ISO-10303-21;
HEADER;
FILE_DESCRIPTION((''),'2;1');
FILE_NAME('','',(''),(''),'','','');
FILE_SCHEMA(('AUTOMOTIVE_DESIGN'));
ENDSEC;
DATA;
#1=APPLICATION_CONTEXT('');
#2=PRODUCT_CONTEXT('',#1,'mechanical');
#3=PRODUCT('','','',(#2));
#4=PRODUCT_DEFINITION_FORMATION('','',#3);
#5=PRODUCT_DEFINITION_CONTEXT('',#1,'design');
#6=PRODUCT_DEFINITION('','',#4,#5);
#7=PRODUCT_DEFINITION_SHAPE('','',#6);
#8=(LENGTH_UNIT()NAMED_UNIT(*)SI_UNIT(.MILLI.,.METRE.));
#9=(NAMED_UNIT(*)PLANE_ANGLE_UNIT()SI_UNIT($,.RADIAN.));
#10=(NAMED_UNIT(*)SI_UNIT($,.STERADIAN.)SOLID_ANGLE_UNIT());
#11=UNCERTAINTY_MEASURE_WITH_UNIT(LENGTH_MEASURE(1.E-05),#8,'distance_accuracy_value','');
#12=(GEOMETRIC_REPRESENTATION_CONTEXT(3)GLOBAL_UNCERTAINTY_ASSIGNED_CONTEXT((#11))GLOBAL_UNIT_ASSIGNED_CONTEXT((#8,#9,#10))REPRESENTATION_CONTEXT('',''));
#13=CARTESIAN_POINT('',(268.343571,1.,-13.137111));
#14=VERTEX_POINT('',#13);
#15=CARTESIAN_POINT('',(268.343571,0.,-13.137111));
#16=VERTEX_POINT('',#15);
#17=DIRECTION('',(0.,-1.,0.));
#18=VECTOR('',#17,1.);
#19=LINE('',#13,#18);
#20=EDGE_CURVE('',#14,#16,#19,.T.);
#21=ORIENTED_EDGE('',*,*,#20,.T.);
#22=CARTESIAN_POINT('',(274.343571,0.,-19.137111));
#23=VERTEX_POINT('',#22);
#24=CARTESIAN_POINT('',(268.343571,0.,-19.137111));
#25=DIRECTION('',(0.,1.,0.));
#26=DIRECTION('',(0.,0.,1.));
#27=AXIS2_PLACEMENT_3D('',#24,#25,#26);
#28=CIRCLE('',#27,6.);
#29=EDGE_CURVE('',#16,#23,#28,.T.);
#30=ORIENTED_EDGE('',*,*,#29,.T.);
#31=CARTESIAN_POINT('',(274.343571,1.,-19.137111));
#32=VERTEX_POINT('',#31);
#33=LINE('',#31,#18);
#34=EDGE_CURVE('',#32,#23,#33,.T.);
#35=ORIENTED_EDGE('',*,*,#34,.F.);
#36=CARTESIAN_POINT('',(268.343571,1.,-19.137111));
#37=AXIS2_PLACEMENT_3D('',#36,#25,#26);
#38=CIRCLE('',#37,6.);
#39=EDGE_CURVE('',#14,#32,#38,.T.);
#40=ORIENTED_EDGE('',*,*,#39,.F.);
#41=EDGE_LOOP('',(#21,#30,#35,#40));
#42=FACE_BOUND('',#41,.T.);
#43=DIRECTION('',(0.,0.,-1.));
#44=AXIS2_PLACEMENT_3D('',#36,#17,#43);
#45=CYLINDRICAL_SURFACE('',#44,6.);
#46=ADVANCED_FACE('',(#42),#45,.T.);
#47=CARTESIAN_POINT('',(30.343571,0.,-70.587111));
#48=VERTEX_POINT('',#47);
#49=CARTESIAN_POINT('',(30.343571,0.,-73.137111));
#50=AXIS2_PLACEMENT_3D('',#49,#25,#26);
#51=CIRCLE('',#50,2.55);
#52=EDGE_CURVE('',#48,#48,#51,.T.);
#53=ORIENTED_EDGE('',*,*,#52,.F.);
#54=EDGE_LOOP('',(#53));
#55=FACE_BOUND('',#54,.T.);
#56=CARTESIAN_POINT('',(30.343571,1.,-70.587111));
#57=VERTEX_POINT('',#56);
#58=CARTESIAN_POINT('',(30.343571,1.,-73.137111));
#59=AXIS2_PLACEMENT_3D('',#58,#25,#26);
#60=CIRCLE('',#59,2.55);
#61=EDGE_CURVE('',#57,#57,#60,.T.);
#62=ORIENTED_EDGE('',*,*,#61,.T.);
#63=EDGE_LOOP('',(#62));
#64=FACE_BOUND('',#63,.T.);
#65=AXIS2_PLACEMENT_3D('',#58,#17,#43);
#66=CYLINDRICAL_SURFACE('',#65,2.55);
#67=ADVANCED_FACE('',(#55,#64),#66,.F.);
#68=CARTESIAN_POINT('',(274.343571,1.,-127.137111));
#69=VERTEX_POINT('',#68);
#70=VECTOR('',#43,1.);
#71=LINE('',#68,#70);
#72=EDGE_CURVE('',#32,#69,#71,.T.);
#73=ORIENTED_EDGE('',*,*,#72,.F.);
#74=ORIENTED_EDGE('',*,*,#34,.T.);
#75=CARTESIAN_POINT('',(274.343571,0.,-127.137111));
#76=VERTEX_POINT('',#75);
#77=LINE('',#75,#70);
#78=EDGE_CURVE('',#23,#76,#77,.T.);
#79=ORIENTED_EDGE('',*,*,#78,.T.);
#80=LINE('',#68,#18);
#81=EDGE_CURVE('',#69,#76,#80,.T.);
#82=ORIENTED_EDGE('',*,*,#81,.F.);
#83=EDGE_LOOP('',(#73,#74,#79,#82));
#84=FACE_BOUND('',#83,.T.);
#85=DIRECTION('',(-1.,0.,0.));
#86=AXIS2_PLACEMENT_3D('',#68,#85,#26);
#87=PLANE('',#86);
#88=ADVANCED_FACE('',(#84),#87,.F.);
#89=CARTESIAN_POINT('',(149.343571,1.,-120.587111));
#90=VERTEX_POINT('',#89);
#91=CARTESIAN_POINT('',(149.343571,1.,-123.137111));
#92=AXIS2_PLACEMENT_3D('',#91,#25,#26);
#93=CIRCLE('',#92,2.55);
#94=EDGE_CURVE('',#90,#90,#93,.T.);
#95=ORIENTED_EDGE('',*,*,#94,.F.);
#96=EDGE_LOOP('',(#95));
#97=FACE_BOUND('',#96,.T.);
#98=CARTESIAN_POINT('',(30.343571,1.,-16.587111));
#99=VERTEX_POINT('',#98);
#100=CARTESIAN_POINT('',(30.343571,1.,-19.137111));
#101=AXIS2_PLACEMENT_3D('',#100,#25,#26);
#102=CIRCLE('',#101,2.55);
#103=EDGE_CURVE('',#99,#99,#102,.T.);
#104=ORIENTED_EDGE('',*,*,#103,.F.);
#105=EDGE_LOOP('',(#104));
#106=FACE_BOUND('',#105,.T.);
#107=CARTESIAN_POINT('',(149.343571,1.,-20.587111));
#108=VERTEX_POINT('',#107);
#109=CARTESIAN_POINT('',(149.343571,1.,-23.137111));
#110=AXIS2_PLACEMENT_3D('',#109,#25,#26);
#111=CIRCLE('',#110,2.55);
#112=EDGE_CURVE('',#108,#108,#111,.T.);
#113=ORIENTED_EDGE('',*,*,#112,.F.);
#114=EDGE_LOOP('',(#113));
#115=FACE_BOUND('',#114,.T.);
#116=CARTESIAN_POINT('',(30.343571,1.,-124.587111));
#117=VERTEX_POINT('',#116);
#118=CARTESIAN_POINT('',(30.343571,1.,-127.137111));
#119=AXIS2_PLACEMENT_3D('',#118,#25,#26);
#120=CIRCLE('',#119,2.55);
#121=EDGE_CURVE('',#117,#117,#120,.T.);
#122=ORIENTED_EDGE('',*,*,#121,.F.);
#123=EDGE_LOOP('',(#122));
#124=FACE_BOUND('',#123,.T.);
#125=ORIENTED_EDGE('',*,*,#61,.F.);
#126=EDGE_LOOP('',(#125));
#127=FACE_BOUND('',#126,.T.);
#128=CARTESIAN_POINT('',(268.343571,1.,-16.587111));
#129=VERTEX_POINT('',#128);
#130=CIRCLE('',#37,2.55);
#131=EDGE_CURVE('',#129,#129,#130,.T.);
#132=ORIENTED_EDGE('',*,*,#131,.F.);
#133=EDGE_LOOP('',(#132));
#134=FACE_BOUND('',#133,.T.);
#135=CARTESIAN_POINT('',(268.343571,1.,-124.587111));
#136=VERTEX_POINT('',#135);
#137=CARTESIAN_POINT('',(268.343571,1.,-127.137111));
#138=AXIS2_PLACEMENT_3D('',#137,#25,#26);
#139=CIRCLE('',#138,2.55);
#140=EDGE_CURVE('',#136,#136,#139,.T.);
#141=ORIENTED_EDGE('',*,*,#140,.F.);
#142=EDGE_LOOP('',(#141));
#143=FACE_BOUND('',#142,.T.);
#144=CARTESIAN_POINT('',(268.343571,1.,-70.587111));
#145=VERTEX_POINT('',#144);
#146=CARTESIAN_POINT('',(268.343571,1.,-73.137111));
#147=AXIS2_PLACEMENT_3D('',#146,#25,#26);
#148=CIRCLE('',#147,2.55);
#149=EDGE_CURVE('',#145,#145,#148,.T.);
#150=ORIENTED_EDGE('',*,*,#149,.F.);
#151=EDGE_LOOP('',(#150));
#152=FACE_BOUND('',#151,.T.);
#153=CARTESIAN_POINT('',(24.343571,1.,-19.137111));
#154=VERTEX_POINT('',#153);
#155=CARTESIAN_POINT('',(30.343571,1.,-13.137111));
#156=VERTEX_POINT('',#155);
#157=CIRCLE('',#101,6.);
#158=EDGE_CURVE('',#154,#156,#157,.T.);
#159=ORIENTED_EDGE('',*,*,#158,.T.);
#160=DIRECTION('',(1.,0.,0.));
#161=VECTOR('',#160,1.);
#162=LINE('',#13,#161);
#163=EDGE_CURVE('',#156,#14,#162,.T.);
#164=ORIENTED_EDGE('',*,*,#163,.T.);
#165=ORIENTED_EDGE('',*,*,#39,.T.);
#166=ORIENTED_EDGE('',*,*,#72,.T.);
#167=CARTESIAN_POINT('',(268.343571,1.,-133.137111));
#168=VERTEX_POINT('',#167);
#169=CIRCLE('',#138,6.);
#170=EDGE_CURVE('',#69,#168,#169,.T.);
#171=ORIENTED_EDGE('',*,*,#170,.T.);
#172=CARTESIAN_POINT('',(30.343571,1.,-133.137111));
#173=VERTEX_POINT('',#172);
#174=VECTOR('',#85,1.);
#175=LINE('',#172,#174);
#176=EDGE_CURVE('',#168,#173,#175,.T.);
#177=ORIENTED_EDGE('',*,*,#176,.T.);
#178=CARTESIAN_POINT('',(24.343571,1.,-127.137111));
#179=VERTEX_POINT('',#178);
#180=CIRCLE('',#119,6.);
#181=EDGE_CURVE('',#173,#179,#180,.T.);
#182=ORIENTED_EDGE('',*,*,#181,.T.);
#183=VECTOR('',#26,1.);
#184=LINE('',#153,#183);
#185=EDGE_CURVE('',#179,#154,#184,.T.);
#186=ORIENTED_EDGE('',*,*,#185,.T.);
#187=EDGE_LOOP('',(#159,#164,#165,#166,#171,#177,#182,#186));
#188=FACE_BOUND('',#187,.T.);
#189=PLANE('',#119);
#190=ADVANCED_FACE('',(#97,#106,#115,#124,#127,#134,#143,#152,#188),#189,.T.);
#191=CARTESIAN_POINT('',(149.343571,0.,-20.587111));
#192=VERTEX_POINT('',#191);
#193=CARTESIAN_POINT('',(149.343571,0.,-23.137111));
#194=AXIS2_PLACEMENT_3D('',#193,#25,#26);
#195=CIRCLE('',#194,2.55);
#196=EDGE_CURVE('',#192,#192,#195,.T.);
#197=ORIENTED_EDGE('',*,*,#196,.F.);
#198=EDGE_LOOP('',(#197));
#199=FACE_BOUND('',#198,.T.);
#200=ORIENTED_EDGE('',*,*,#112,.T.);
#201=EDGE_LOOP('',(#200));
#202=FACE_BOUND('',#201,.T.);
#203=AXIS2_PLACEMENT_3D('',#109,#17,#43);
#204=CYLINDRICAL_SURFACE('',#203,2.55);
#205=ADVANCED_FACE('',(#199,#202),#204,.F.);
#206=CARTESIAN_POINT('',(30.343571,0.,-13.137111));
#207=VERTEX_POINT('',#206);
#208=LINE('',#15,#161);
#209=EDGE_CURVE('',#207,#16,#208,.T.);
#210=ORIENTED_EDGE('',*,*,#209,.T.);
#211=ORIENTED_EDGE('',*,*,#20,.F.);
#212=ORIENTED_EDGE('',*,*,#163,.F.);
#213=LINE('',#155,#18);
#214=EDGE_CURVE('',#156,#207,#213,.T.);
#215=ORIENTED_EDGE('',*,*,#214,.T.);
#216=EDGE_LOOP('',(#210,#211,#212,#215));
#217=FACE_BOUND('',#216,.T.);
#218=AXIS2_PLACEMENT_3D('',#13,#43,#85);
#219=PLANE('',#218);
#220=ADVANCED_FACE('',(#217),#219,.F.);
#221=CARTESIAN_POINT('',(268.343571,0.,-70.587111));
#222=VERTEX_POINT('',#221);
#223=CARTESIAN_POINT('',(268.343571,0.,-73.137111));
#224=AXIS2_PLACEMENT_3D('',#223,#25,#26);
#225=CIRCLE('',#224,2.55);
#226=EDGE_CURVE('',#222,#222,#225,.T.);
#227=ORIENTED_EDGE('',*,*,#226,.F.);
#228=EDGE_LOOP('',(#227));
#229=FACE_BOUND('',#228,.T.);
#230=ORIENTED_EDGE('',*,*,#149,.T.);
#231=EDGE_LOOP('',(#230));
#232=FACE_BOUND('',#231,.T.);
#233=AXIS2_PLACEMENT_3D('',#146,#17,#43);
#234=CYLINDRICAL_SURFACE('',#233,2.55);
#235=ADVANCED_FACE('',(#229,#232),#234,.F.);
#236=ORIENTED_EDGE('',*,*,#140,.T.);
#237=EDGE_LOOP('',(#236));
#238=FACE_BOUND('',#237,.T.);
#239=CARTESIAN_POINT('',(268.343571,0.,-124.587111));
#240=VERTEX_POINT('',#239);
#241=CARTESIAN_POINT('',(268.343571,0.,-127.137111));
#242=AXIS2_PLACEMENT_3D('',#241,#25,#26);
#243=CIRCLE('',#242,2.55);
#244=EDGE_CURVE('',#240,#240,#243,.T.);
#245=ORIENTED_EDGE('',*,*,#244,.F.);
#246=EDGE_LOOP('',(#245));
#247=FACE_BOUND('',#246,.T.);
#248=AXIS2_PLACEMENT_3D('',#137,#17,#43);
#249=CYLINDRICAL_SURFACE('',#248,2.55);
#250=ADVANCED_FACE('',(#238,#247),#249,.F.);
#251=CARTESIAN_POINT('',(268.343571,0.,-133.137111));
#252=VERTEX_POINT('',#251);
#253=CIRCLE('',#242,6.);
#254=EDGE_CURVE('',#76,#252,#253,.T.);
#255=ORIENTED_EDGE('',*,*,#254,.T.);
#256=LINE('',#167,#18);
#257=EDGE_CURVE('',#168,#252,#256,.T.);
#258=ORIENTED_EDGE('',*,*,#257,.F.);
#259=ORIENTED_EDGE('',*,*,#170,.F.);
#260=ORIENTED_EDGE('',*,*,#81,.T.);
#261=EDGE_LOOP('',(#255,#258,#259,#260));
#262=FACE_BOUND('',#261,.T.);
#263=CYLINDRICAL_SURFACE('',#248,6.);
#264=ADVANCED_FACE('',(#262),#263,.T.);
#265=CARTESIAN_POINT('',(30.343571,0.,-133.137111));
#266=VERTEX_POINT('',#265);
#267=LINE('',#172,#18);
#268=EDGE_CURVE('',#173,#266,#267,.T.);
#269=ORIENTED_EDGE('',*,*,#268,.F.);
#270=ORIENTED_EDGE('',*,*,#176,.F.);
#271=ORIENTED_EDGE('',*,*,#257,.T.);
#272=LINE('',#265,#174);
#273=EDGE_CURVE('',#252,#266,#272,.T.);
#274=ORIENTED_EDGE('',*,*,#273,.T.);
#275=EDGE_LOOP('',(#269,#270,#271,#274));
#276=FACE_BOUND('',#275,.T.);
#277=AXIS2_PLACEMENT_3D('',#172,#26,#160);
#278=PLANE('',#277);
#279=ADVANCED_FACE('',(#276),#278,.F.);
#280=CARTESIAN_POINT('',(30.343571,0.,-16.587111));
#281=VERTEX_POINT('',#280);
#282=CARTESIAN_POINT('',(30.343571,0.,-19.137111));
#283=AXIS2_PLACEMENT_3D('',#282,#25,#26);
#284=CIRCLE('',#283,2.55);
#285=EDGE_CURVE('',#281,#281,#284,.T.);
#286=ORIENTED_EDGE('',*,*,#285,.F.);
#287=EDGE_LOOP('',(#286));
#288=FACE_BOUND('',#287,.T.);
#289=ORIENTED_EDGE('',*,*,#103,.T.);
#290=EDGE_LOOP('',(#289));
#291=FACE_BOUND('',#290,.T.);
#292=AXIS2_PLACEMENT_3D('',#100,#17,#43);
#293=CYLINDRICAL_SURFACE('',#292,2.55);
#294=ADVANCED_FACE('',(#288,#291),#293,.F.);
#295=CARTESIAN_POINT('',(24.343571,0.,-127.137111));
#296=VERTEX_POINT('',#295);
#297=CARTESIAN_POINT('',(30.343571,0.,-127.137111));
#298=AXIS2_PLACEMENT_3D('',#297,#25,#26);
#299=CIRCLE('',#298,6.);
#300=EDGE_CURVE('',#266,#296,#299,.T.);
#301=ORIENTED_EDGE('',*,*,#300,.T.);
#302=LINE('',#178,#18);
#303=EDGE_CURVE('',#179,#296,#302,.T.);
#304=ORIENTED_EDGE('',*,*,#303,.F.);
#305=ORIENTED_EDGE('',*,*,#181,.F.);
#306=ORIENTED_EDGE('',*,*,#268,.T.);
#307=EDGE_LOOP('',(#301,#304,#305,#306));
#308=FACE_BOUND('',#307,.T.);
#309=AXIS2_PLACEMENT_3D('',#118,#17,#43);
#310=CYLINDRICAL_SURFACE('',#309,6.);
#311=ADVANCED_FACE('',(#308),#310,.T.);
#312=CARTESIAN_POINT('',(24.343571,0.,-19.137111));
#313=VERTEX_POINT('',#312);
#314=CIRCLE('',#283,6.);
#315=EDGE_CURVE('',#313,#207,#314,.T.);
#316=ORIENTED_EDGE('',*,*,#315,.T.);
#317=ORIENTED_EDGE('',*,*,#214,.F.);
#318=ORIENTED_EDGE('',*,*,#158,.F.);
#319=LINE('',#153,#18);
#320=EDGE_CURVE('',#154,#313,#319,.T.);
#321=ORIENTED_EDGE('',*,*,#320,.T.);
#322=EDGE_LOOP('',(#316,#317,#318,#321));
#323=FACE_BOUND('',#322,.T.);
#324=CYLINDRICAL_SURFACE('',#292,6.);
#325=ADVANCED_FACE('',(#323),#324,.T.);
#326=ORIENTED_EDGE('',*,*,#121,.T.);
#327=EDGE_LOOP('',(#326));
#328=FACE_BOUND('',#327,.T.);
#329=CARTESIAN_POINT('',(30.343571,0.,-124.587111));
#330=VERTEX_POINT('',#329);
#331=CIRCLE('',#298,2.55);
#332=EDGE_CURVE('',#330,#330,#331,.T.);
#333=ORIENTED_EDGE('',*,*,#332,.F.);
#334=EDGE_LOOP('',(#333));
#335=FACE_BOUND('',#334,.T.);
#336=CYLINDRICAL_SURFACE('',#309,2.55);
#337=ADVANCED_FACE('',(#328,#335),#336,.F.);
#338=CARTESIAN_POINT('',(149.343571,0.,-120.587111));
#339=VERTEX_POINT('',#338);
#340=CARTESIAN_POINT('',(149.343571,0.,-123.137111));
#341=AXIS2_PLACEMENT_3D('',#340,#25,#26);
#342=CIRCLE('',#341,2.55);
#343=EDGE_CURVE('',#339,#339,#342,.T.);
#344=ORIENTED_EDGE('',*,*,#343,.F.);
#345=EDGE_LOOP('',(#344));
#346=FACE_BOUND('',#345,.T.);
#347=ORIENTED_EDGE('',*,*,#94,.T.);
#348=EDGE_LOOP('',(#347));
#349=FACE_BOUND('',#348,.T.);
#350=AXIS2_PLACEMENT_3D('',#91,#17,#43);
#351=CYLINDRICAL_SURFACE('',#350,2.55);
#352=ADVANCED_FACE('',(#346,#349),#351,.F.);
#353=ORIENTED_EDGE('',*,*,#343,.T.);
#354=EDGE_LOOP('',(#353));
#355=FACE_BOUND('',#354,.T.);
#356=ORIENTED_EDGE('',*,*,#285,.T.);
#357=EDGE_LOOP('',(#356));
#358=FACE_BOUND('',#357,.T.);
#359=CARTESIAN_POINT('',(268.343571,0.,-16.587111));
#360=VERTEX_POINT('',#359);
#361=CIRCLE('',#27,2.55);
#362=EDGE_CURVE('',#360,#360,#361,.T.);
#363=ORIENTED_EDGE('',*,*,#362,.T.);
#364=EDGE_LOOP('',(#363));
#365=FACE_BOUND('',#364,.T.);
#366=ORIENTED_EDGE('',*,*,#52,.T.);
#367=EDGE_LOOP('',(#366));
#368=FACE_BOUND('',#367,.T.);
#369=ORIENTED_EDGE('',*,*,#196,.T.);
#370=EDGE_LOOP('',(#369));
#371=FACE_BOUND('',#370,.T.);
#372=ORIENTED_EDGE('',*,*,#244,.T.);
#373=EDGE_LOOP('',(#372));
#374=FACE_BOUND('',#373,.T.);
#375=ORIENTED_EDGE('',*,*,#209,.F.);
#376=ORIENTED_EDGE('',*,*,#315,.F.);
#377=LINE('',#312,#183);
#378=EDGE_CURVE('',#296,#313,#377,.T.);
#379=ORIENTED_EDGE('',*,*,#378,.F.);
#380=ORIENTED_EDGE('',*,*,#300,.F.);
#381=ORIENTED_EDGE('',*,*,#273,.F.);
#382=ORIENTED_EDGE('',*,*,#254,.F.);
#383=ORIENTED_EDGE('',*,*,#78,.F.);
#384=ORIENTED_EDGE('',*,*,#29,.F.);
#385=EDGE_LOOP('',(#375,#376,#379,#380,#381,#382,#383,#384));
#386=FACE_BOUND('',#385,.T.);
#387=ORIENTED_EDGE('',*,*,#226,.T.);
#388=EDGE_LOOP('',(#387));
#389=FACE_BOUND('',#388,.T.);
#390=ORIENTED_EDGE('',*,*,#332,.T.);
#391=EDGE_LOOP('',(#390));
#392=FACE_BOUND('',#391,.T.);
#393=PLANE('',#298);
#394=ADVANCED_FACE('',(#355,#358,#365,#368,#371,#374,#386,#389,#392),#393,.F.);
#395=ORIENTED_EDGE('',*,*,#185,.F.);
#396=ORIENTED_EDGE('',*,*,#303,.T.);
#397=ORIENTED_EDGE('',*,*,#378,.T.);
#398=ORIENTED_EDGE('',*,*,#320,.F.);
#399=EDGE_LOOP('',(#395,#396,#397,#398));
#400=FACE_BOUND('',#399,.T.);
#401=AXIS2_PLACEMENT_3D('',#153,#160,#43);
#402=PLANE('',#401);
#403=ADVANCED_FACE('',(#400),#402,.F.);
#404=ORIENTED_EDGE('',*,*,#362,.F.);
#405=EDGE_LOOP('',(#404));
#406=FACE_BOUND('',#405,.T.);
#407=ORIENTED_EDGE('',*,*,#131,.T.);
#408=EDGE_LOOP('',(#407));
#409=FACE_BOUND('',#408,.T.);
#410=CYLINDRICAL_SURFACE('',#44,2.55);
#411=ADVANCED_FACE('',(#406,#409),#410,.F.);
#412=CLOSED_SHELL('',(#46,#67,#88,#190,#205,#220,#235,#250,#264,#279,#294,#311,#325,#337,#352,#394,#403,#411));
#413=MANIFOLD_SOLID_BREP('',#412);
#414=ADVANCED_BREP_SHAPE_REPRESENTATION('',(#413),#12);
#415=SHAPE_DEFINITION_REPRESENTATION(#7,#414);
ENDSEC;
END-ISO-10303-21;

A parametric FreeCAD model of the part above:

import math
import FreeCAD as App
import Part
import Sketcher

doc = App.newDocument("Part")
body = doc.addObject("PartDesign::Body", "Body")

sketch1 = body.newObject("Sketcher::SketchObject", "Sketch")
sketch1.AttachmentSupport = (doc.getObject("XZ_Plane"), [""])
sketch1.MapMode = "FlatFace"
sketch1.addGeometry([
    Part.LineSegment(App.Vector(268.3, -133.1, 0), App.Vector(30.3, -133.1, 0)),
    Part.ArcOfCircle(Part.Circle(App.Vector(30.3, -127.1, 0), App.Vector(0, 0, 1), 6), math.radians(180), math.radians(270)),
    Part.LineSegment(App.Vector(24.3, -127.1, 0), App.Vector(24.3, -19.1, 0)),
    Part.ArcOfCircle(Part.Circle(App.Vector(30.3, -19.1, 0), App.Vector(0, 0, 1), 6), math.radians(90), math.radians(180)),
    Part.LineSegment(App.Vector(30.3, -13.1, 0), App.Vector(268.3, -13.1, 0)),
    Part.ArcOfCircle(Part.Circle(App.Vector(268.3, -19.1, 0), App.Vector(0, 0, 1), 6), math.radians(0), math.radians(90)),
    Part.LineSegment(App.Vector(274.3, -19.1, 0), App.Vector(274.3, -127.1, 0)),
    Part.ArcOfCircle(Part.Circle(App.Vector(268.3, -127.1, 0), App.Vector(0, 0, 1), 6), math.radians(-90), math.radians(0)),
    Part.Circle(App.Vector(268.3, -19.1, 0), App.Vector(0, 0, 1), 2.5),
    Part.Circle(App.Vector(149.3, -23.1, 0), App.Vector(0, 0, 1), 2.5),
    Part.Circle(App.Vector(30.3, -19.1, 0), App.Vector(0, 0, 1), 2.5),
    Part.Circle(App.Vector(268.3, -73.1, 0), App.Vector(0, 0, 1), 2.5),
    Part.Circle(App.Vector(268.3, -127.1, 0), App.Vector(0, 0, 1), 2.5),
    Part.Circle(App.Vector(149.3, -123.1, 0), App.Vector(0, 0, 1), 2.5),
    Part.Circle(App.Vector(30.3, -73.1, 0), App.Vector(0, 0, 1), 2.5),
    Part.Circle(App.Vector(30.3, -127.1, 0), App.Vector(0, 0, 1), 2.5),
], False)
sketch1.addConstraint([
    Sketcher.Constraint("Tangent", 0, 2, 1, 2),
    Sketcher.Constraint("Tangent", 1, 1, 2, 1),
    Sketcher.Constraint("Tangent", 2, 2, 3, 2),
    Sketcher.Constraint("Tangent", 3, 1, 4, 1),
    Sketcher.Constraint("Tangent", 4, 2, 5, 2),
    Sketcher.Constraint("Tangent", 5, 1, 6, 1),
    Sketcher.Constraint("Tangent", 6, 2, 7, 2),
    Sketcher.Constraint("Tangent", 7, 1, 0, 1),
    Sketcher.Constraint("Horizontal", 0),
    Sketcher.Constraint("Vertical", 2),
    Sketcher.Constraint("Horizontal", 4),
    Sketcher.Constraint("Vertical", 6),
    Sketcher.Constraint("Coincident", 8, 3, 5, 3),
    Sketcher.Constraint("Coincident", 10, 3, 3, 3),
    Sketcher.Constraint("Coincident", 12, 3, 7, 3),
    Sketcher.Constraint("Coincident", 15, 3, 1, 3),
    Sketcher.Constraint("Equal", 1, 3),
    Sketcher.Constraint("Equal", 3, 5),
    Sketcher.Constraint("Equal", 5, 7),
    Sketcher.Constraint("Equal", 8, 9),
    Sketcher.Constraint("Equal", 9, 10),
    Sketcher.Constraint("Equal", 10, 11),
    Sketcher.Constraint("Equal", 11, 12),
    Sketcher.Constraint("Equal", 12, 13),
    Sketcher.Constraint("Equal", 13, 14),
    Sketcher.Constraint("Equal", 14, 15),
    Sketcher.Constraint("Horizontal", 11, 3, 14, 3),
    Sketcher.Constraint("Vertical", 8, 3, 11, 3),
    Sketcher.Constraint("Vertical", 9, 3, 13, 3),
    Sketcher.Constraint("Vertical", 10, 3, 14, 3),
    Sketcher.Constraint("Radius", 1, 6.0),
    Sketcher.Constraint("Diameter", 8, 5.1),
    Sketcher.Constraint("DistanceX", 0, 2, 0, 1, 238.0),
    Sketcher.Constraint("DistanceY", 2, 1, 2, 2, 108.0),
    Sketcher.Constraint("DistanceX", 9, 3, 5, 3, 119.0),
    Sketcher.Constraint("DistanceY", 9, 3, 5, 3, 4.0),
    Sketcher.Constraint("DistanceY", 11, 3, 5, 3, 54.0),
    Sketcher.Constraint("DistanceY", 13, 3, 9, 3, 100.0),
    Sketcher.Constraint("DistanceX", -1, 1, 1, 3, 30.343571),
    Sketcher.Constraint("DistanceY", 1, 3, -1, 1, 127.137111),
])
pad1 = body.newObject("PartDesign::Pad", "Pad")
pad1.Profile = sketch1
pad1.Length = 1
pad1.Reversed = True

doc.recompute()
